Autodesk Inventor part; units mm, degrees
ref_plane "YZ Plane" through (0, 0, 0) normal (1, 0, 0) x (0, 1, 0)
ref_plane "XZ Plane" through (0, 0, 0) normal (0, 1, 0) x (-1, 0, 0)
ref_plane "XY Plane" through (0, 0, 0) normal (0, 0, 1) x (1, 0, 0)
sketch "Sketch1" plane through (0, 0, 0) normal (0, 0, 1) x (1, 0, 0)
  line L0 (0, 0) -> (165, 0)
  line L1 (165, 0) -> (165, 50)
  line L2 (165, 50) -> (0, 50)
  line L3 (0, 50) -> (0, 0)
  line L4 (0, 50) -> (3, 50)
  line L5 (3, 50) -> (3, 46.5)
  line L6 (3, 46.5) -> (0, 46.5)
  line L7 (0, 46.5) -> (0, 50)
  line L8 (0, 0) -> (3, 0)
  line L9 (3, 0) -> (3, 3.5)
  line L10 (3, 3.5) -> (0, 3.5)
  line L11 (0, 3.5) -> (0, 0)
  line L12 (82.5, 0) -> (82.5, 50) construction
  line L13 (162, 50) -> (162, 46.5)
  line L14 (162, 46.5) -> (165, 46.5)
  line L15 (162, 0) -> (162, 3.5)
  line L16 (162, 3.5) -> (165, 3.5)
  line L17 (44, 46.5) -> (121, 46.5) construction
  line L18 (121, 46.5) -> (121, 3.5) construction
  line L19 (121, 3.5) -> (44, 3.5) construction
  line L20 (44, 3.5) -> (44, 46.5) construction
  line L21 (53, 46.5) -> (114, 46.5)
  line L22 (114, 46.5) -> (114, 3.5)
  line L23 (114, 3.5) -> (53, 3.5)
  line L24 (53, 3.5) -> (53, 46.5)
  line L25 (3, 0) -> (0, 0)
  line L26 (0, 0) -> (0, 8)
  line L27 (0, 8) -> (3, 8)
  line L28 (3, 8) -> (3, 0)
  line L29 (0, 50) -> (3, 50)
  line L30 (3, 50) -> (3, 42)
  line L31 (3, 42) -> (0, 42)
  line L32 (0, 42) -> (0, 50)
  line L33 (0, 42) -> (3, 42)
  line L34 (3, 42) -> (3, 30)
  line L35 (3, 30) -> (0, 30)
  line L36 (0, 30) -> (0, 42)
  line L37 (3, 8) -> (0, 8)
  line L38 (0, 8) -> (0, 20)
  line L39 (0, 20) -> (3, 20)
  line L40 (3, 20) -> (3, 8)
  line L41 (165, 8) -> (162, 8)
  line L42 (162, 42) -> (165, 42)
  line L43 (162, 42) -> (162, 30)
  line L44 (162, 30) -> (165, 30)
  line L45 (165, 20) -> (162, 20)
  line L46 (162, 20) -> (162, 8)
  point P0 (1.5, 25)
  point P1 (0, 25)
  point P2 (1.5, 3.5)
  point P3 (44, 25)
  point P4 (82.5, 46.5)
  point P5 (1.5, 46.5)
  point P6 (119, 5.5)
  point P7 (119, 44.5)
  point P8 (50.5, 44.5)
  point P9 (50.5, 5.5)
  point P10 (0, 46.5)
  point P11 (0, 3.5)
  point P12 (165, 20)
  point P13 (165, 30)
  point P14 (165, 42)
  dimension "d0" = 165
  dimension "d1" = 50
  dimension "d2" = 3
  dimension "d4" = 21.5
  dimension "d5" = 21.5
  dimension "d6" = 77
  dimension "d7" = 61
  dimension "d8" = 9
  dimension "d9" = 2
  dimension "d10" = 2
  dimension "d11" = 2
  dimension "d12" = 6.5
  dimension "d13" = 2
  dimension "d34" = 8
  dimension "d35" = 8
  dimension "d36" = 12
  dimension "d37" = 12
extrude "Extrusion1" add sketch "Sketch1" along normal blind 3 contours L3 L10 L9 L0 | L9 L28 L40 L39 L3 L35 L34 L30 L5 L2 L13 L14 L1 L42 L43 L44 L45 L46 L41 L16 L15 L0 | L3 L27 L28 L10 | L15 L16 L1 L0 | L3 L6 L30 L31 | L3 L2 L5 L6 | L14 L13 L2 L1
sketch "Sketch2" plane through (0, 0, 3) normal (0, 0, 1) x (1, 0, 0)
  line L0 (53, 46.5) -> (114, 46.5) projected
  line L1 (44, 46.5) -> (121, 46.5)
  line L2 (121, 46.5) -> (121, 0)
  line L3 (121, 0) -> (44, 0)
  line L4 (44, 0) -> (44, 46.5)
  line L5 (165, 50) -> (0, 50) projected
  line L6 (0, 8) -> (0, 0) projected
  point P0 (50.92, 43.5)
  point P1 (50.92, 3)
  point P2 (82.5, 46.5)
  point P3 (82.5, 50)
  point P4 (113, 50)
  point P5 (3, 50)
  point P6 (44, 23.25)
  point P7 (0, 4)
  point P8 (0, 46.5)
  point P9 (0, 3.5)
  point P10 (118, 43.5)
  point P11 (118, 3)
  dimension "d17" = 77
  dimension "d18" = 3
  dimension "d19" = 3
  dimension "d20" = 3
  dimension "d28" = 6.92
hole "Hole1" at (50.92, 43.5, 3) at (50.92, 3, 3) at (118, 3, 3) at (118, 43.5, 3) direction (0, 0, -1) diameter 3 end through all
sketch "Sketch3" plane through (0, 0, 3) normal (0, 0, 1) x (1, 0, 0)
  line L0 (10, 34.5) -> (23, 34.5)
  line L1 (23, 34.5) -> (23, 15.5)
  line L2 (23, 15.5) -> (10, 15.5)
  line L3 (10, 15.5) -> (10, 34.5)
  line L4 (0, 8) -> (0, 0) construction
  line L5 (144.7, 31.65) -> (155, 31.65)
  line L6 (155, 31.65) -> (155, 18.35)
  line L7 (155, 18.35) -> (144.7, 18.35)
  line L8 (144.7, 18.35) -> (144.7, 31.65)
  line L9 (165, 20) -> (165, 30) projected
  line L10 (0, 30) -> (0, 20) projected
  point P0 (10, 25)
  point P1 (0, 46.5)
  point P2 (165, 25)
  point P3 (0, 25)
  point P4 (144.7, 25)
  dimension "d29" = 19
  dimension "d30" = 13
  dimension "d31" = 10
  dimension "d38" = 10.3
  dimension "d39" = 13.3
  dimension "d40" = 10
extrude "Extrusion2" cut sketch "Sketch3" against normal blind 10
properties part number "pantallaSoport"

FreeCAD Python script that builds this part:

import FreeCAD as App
import Part
import Sketcher
Q = App.Units.Quantity


def add_polygon(sketch, points):
    """Adds a closed chain of lines whose ends are joined by coincident constraints."""
    first, n = sketch.GeometryCount, len(points)
    for a, b in zip(points, points[1:] + points[:1]):
        sketch.addGeometry(Part.LineSegment(App.Vector(*a, 0), App.Vector(*b, 0)), False)
    for i in range(n):
        sketch.addConstraint(Sketcher.Constraint("Coincident", first + i, 2, first + (i + 1) % n, 1))

doc = App.newDocument("Part")
params = doc.addObject("Spreadsheet::Sheet", "Params")
for row, (alias, value) in enumerate([
    ("sketch1_width", "165 mm"),
    ("sketch1_width2", "3 mm"),
    ("sketch1_width3", "61 mm"),
    ("sketch1_height", "8 mm"),
    ("sketch1_height2", "12 mm"),
    ("pad1_length", "3 mm"),
    ("sketch2_diameter", "3 mm"),
    ("hole_diameter", "3 mm"),
    ("sketch3_width", "13 mm"),
    ("sketch3_height", "19 mm"),
    ("sketch3_width2", "10.3 mm"),
    ("sketch3_height2", "13.3 mm"),
    ("pocket1_length", "10 mm"),
], start=1):
    params.set(f"A{row}", alias)
    params.set(f"B{row}", "=" + value)
    params.setAlias(f"B{row}", alias)

body = doc.addObject("PartDesign::Body", "Body")

sketch1 = doc.addObject("Sketcher::SketchObject", "Sketch")
body.addObject(sketch1)
sketch1.AttachmentSupport = (doc.XY_Plane, [""])
sketch1.MapMode = "FlatFace"
add_polygon(sketch1, [(0, 0), (165, 0), (165, 8), (162, 8), (162, 20), (165, 20), (165, 30), (162, 30), (162, 42), (165, 42), (165, 50), (0, 50), (0, 42), (3, 42), (3, 30), (0, 30), (0, 20), (3, 20), (3, 8), (0, 8)])
add_polygon(sketch1, [(53, 46.5), (114, 46.5), (114, 3.5), (53, 3.5)])
sketch1.addConstraint(Sketcher.Constraint("Horizontal", 0))
sketch1.addConstraint(Sketcher.Constraint("Vertical", 1))
sketch1.addConstraint(Sketcher.Constraint("Horizontal", 2))
sketch1.addConstraint(Sketcher.Constraint("Vertical", 3))
sketch1.addConstraint(Sketcher.Constraint("Horizontal", 4))
sketch1.addConstraint(Sketcher.Constraint("Vertical", 5))
sketch1.addConstraint(Sketcher.Constraint("Horizontal", 6))
sketch1.addConstraint(Sketcher.Constraint("Vertical", 7))
sketch1.addConstraint(Sketcher.Constraint("Horizontal", 8))
sketch1.addConstraint(Sketcher.Constraint("Vertical", 9))
sketch1.addConstraint(Sketcher.Constraint("Horizontal", 10))
sketch1.addConstraint(Sketcher.Constraint("Vertical", 11))
sketch1.addConstraint(Sketcher.Constraint("Horizontal", 12))
sketch1.addConstraint(Sketcher.Constraint("Vertical", 13))
sketch1.addConstraint(Sketcher.Constraint("Horizontal", 14))
sketch1.addConstraint(Sketcher.Constraint("Vertical", 15))
sketch1.addConstraint(Sketcher.Constraint("Horizontal", 16))
sketch1.addConstraint(Sketcher.Constraint("Vertical", 17))
sketch1.addConstraint(Sketcher.Constraint("Horizontal", 18))
sketch1.addConstraint(Sketcher.Constraint("Vertical", 19))
sketch1.addConstraint(Sketcher.Constraint("Horizontal", 20))
sketch1.addConstraint(Sketcher.Constraint("Vertical", 21))
sketch1.addConstraint(Sketcher.Constraint("Horizontal", 22))
sketch1.addConstraint(Sketcher.Constraint("Vertical", 23))
sketch1.addConstraint(Sketcher.Constraint("Coincident", 19, 2, -1, 1))
sketch1.addConstraint(Sketcher.Constraint("PointOnObject", 10, 2, -2))
sketch1.addConstraint(Sketcher.Constraint("PointOnObject", 14, 2, -2))
sketch1.addConstraint(Sketcher.Constraint("Horizontal", 8, 2, 11, 2))
sketch1.addConstraint(Sketcher.Constraint("Horizontal", 6, 2, 13, 2))
sketch1.addConstraint(Sketcher.Constraint("Horizontal", 4, 2, 15, 2))
sketch1.addConstraint(Sketcher.Constraint("Horizontal", 2, 2, 17, 2))
sketch1.addConstraint(Sketcher.Constraint("Vertical", 1, 2, 4, 2))
sketch1.addConstraint(Sketcher.Constraint("Vertical", 3, 2, 6, 2))
sketch1.addConstraint(Sketcher.Constraint("Vertical", 5, 2, 8, 2))
sketch1.addConstraint(Sketcher.Constraint("Vertical", 13, 2, 16, 2))
sketch1.addConstraint(Sketcher.Constraint("Equal", 8, 12))
sketch1.addConstraint(Sketcher.Constraint("Equal", 3, 7))
sketch1.addConstraint(Sketcher.Constraint("Equal", 1, 9))
sketch1.addConstraint(Sketcher.Constraint("DistanceX", 0, 1, 0, 2, Q("165 mm")))
sketch1.addConstraint(Sketcher.Constraint("DistanceX", 2, 2, 2, 1, Q("3 mm")))
sketch1.addConstraint(Sketcher.Constraint("DistanceX", 20, 1, 20, 2, Q("61 mm")))
sketch1.addConstraint(Sketcher.Constraint("DistanceY", 1, 1, 1, 2, Q("8 mm")))
sketch1.addConstraint(Sketcher.Constraint("DistanceY", 3, 1, 3, 2, Q("12 mm")))
sketch1.addConstraint(Sketcher.Constraint("DistanceY", -1, 1, 9, 2, Q("50 mm")))
sketch1.addConstraint(Sketcher.Constraint("DistanceX", 17, 2, 22, 2, Q("50 mm")))
sketch1.addConstraint(Sketcher.Constraint("DistanceY", 21, 2, 21, 1, Q("43 mm")))
sketch1.addConstraint(Sketcher.Constraint("DistanceY", -1, 1, 20, 2, Q("46.5 mm")))
sketch1.setExpression("Constraints[62]", "Params.sketch1_width")
sketch1.setExpression("Constraints[63]", "Params.sketch1_width2")
sketch1.setExpression("Constraints[64]", "Params.sketch1_width3")
sketch1.setExpression("Constraints[65]", "Params.sketch1_height")
sketch1.setExpression("Constraints[66]", "Params.sketch1_height2")
pad1 = doc.addObject("PartDesign::Pad", "Pad")
body.addObject(pad1)
pad1.Profile = sketch1
pad1.setExpression("Length", "Params.pad1_length")

sketch2 = doc.addObject("Sketcher::SketchObject", "Sketch001")
body.addObject(sketch2)
sketch2.AttachmentSupport = (doc.XY_Plane, [""])
sketch2.MapMode = "FlatFace"
sketch2.AttachmentOffset = App.Placement(App.Vector(0, 0, 3), App.Rotation())
sketch2.addGeometry(Part.Circle(App.Vector(50.9, 43.5, 0), App.Vector(0, 0, 1), 1.5), False)
sketch2.addGeometry(Part.Circle(App.Vector(50.9, 3, 0), App.Vector(0, 0, 1), 1.5), False)
sketch2.addGeometry(Part.Circle(App.Vector(118, 3, 0), App.Vector(0, 0, 1), 1.5), False)
sketch2.addGeometry(Part.Circle(App.Vector(118, 43.5, 0), App.Vector(0, 0, 1), 1.5), False)
sketch2.addConstraint(Sketcher.Constraint("Equal", 0, 1))
sketch2.addConstraint(Sketcher.Constraint("Equal", 1, 2))
sketch2.addConstraint(Sketcher.Constraint("Equal", 2, 3))
sketch2.addConstraint(Sketcher.Constraint("Horizontal", 1, 3, 2, 3))
sketch2.addConstraint(Sketcher.Constraint("Horizontal", 0, 3, 3, 3))
sketch2.addConstraint(Sketcher.Constraint("Vertical", 0, 3, 1, 3))
sketch2.addConstraint(Sketcher.Constraint("Vertical", 2, 3, 3, 3))
sketch2.addConstraint(Sketcher.Constraint("Diameter", 0, Q("3 mm")))
sketch2.addConstraint(Sketcher.Constraint("DistanceY", -1, 1, 1, 3, Q("3 mm")))
sketch2.addConstraint(Sketcher.Constraint("DistanceX", -1, 1, 2, 3, Q("118 mm")))
sketch2.addConstraint(Sketcher.Constraint("DistanceY", -1, 1, 0, 3, Q("43.5 mm")))
sketch2.addConstraint(Sketcher.Constraint("DistanceX", -1, 1, 0, 3, Q("50.92 mm")))
sketch2.setExpression("Constraints[7]", "Params.sketch2_diameter")
doc.recompute()
hole = doc.addObject("PartDesign::Hole", "Hole")
body.addObject(hole)
hole.Profile = sketch2
hole.ThreadType = "None"
hole.setExpression("Diameter", "Params.hole_diameter")
hole.DepthType = "ThroughAll"

sketch3 = doc.addObject("Sketcher::SketchObject", "Sketch002")
body.addObject(sketch3)
sketch3.AttachmentSupport = (doc.XY_Plane, [""])
sketch3.MapMode = "FlatFace"
sketch3.AttachmentOffset = App.Placement(App.Vector(0, 0, 3), App.Rotation())
add_polygon(sketch3, [(23, 34), (10, 34), (10, 16), (23, 16)])
add_polygon(sketch3, [(155, 32), (145, 32), (145, 18), (155, 18)])
sketch3.addConstraint(Sketcher.Constraint("Horizontal", 0))
sketch3.addConstraint(Sketcher.Constraint("Vertical", 1))
sketch3.addConstraint(Sketcher.Constraint("Horizontal", 2))
sketch3.addConstraint(Sketcher.Constraint("Vertical", 3))
sketch3.addConstraint(Sketcher.Constraint("Horizontal", 4))
sketch3.addConstraint(Sketcher.Constraint("Vertical", 5))
sketch3.addConstraint(Sketcher.Constraint("Horizontal", 6))
sketch3.addConstraint(Sketcher.Constraint("Vertical", 7))
sketch3.addConstraint(Sketcher.Constraint("DistanceX", 0, 2, 0, 1, Q("13 mm")))
sketch3.addConstraint(Sketcher.Constraint("DistanceY", 1, 2, 1, 1, Q("19 mm")))
sketch3.addConstraint(Sketcher.Constraint("DistanceX", 4, 2, 4, 1, Q("10.3 mm")))
sketch3.addConstraint(Sketcher.Constraint("DistanceY", 5, 2, 5, 1, Q("13.3 mm")))
sketch3.addConstraint(Sketcher.Constraint("DistanceX", -1, 1, 0, 2, Q("10 mm")))
sketch3.addConstraint(Sketcher.Constraint("DistanceX", -1, 1, 6, 2, Q("155 mm")))
sketch3.addConstraint(Sketcher.Constraint("DistanceY", -1, 1, 0, 2, Q("34.5 mm")))
sketch3.addConstraint(Sketcher.Constraint("DistanceY", -1, 1, 4, 2, Q("31.65 mm")))
sketch3.setExpression("Constraints[16]", "Params.sketch3_width")
sketch3.setExpression("Constraints[17]", "Params.sketch3_height")
sketch3.setExpression("Constraints[18]", "Params.sketch3_width2")
sketch3.setExpression("Constraints[19]", "Params.sketch3_height2")
pocket1 = doc.addObject("PartDesign::Pocket", "Pocket")
body.addObject(pocket1)
pocket1.Profile = sketch3
pocket1.setExpression("Length", "Params.pocket1_length")

doc.recompute()
